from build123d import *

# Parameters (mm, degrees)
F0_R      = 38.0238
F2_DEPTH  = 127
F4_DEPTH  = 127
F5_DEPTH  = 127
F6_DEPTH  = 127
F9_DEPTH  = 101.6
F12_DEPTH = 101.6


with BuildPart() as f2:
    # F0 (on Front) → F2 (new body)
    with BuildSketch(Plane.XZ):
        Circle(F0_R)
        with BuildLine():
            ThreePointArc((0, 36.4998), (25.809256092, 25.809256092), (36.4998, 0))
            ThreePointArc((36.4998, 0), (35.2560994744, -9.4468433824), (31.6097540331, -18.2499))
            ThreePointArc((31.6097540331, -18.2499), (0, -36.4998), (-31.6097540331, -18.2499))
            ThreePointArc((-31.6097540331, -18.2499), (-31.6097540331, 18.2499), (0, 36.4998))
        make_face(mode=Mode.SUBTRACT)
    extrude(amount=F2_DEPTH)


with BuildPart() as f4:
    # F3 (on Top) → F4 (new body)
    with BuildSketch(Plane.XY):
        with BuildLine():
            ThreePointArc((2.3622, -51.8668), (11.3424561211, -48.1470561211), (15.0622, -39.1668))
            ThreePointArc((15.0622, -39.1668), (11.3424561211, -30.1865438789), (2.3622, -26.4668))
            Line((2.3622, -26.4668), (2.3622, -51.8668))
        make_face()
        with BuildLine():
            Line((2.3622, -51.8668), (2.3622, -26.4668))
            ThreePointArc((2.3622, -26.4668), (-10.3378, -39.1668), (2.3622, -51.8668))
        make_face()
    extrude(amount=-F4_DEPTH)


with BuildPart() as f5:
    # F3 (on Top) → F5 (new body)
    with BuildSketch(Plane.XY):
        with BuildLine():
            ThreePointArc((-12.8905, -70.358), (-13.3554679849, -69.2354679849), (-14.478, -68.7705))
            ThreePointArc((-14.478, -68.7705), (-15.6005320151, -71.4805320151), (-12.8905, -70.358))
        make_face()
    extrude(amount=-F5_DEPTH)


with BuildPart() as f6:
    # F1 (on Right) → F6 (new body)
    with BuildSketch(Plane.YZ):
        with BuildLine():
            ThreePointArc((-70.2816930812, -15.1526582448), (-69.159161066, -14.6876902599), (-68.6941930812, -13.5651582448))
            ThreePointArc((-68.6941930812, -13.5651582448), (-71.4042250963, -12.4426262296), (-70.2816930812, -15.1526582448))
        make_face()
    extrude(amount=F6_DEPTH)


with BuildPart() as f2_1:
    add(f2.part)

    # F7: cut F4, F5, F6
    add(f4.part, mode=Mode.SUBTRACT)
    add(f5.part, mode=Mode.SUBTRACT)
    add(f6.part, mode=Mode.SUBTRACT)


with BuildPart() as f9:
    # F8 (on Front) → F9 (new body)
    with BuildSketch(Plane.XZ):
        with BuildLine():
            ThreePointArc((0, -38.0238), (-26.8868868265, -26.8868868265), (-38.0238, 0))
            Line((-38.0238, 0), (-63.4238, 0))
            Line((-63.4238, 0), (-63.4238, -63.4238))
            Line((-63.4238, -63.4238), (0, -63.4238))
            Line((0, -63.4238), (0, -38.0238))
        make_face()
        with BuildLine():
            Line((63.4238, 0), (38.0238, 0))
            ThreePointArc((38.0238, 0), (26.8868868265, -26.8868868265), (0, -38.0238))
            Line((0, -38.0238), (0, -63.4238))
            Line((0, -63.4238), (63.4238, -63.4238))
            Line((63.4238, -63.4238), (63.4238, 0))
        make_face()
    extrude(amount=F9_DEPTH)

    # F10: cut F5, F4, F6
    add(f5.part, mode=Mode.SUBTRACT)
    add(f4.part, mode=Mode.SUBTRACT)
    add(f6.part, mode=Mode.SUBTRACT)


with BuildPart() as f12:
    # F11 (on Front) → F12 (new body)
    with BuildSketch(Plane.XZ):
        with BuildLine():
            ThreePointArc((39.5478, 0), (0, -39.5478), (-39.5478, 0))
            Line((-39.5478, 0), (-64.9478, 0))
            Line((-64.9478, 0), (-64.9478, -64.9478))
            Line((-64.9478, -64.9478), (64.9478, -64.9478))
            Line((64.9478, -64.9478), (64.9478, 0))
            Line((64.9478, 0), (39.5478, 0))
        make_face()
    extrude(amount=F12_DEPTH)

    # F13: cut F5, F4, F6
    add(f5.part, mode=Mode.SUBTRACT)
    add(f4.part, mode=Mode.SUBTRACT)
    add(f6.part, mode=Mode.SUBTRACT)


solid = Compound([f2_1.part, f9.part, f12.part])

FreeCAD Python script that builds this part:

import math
import FreeCAD as App
import Part
import Sketcher
Q = App.Units.Quantity

doc = App.newDocument("Part")
body = doc.addObject("PartDesign::Body", "Body")

sketch1 = body.newObject("Sketcher::SketchObject", "Sketch")
sketch1.AttachmentSupport = (doc.getObject("XZ_Plane"), [""])
sketch1.MapMode = "FlatFace"
sketch1.addGeometry(Part.Circle(App.Vector(0, 0, 0), App.Vector(0, 0, 1), 38.0238), False)
sketch1.addGeometry(Part.ArcOfCircle(Part.Circle(App.Vector(0, 0, 0), App.Vector(0, 0, 1), 36.4998), math.radians(90), math.radians(210)), False)
sketch1.addGeometry(Part.ArcOfCircle(Part.Circle(App.Vector(0, 0, 0), App.Vector(0, 0, 1), 36.4998), math.radians(0), math.radians(90)), False)
sketch1.addGeometry(Part.ArcOfCircle(Part.Circle(App.Vector(0, 0, 0), App.Vector(0, 0, 1), 36.4998), math.radians(-30), math.radians(0)), False)
sketch1.addGeometry(Part.ArcOfCircle(Part.Circle(App.Vector(0, 0, 0), App.Vector(0, 0, 1), 36.4998), math.radians(-150), math.radians(-30)), False)
sketch1.addConstraint(Sketcher.Constraint("Tangent", 1, 1, 2, 2))
sketch1.addConstraint(Sketcher.Constraint("Tangent", 2, 1, 3, 2))
sketch1.addConstraint(Sketcher.Constraint("Tangent", 3, 1, 4, 2))
sketch1.addConstraint(Sketcher.Constraint("Tangent", 4, 1, 1, 2))
sketch1.addConstraint(Sketcher.Constraint("Coincident", 0, 3, -1, 1))
sketch1.addConstraint(Sketcher.Constraint("Coincident", 1, 3, -1, 1))
sketch1.addConstraint(Sketcher.Constraint("Equal", 1, 2))
sketch1.addConstraint(Sketcher.Constraint("PointOnObject", 1, 1, -2))
sketch1.addConstraint(Sketcher.Constraint("PointOnObject", 2, 1, -1))
sketch1.addConstraint(Sketcher.Constraint("Horizontal", 3, 1, 4, 1))
sketch1.addConstraint(Sketcher.Constraint("Diameter", 0, Q("2.994 in")))
sketch1.addConstraint(Sketcher.Constraint("Radius", 1, Q("1.437 in")))
sketch1.addConstraint(Sketcher.Constraint("DistanceY", 3, 1, -1, 1, Q("0.7185 in")))
pad1 = body.newObject("PartDesign::Pad", "Pad")
pad1.Profile = sketch1
pad1.Length = Q("5 in")
body2 = doc.addObject("PartDesign::Body", "Body001")

sketch2 = body2.newObject("Sketcher::SketchObject", "Sketch001")
sketch2.AttachmentSupport = (doc.getObject("XY_Plane001"), [""])
sketch2.MapMode = "FlatFace"
sketch2.addGeometry(Part.ArcOfCircle(Part.Circle(App.Vector(2.3622, -39.1668, 0), App.Vector(0, 0, 1), 12.7), math.radians(-90), math.radians(0)), False)
sketch2.addGeometry(Part.ArcOfCircle(Part.Circle(App.Vector(2.3622, -39.1668, 0), App.Vector(0, 0, 1), 12.7), math.radians(0), math.radians(90)), False)
sketch2.addGeometry(Part.ArcOfCircle(Part.Circle(App.Vector(2.3622, -39.1668, 0), App.Vector(0, 0, 1), 12.7), math.radians(90), math.radians(270)), False)
sketch2.addConstraint(Sketcher.Constraint("Tangent", 0, 2, 1, 1))
sketch2.addConstraint(Sketcher.Constraint("Tangent", 1, 2, 2, 1))
sketch2.addConstraint(Sketcher.Constraint("Tangent", 2, 2, 0, 1))
sketch2.addConstraint(Sketcher.Constraint("Horizontal", 2, 3, 0, 2))
sketch2.addConstraint(Sketcher.Constraint("Vertical", 2, 3, 1, 2))
sketch2.addConstraint(Sketcher.Constraint("Vertical", 1, 2, 2, 2))
sketch2.addConstraint(Sketcher.Constraint("Radius", 0, Q("0.5 in")))
sketch2.addConstraint(Sketcher.Constraint("DistanceX", -1, 1, 0, 3, Q("0.093 in")))
sketch2.addConstraint(Sketcher.Constraint("DistanceY", 0, 3, -1, 1, Q("1.542 in")))
pad2 = body2.newObject("PartDesign::Pad", "Pad001")
pad2.Profile = sketch2
pad2.Length = Q("5 in")
pad2.Reversed = True
body3 = doc.addObject("PartDesign::Body", "Body002")

sketch3 = body3.newObject("Sketcher::SketchObject", "Sketch002")
sketch3.AttachmentSupport = (doc.getObject("XY_Plane002"), [""])
sketch3.MapMode = "FlatFace"
sketch3.addGeometry(Part.ArcOfCircle(Part.Circle(App.Vector(-14.478, -70.358, 0), App.Vector(0, 0, 1), 1.5875), math.radians(0), math.radians(90)), False)
sketch3.addGeometry(Part.ArcOfCircle(Part.Circle(App.Vector(-14.478, -70.358, 0), App.Vector(0, 0, 1), 1.5875), math.radians(90), math.radians(360)), False)
sketch3.addConstraint(Sketcher.Constraint("Tangent", 0, 1, 1, 2))
sketch3.addConstraint(Sketcher.Constraint("Coincident", 1, 1, 0, 2))
sketch3.addConstraint(Sketcher.Constraint("Horizontal", 1, 3, 0, 1))
sketch3.addConstraint(Sketcher.Constraint("Vertical", 0, 3, 1, 1))
sketch3.addConstraint(Sketcher.Constraint("Radius", 0, Q("0.0625 in")))
sketch3.addConstraint(Sketcher.Constraint("DistanceX", 0, 3, -1, 1, Q("0.57 in")))
sketch3.addConstraint(Sketcher.Constraint("DistanceY", 0, 3, -1, 1, Q("2.77 in")))
pad3 = body3.newObject("PartDesign::Pad", "Pad002")
pad3.Profile = sketch3
pad3.Length = Q("5 in")
pad3.Reversed = True
body4 = doc.addObject("PartDesign::Body", "Body003")

sketch4 = body4.newObject("Sketcher::SketchObject", "Sketch003")
sketch4.AttachmentSupport = (doc.getObject("YZ_Plane003"), [""])
sketch4.MapMode = "FlatFace"
sketch4.addGeometry(Part.ArcOfCircle(Part.Circle(App.Vector(-70.281693, -13.565158, 0), App.Vector(0, 0, 1), 1.5875), math.radians(-90), math.radians(0)), False)
sketch4.addGeometry(Part.ArcOfCircle(Part.Circle(App.Vector(-70.281693, -13.565158, 0), App.Vector(0, 0, 1), 1.5875), math.radians(0), math.radians(270)), False)
sketch4.addConstraint(Sketcher.Constraint("Tangent", 0, 1, 1, 2))
sketch4.addConstraint(Sketcher.Constraint("Coincident", 1, 1, 0, 2))
sketch4.addConstraint(Sketcher.Constraint("Horizontal", 0, 3, 1, 1))
sketch4.addConstraint(Sketcher.Constraint("Vertical", 1, 3, 0, 1))
sketch4.addConstraint(Sketcher.Constraint("Radius", 0, Q("0.0625 in")))
sketch4.addConstraint(Sketcher.Constraint("DistanceY", 0, 3, -1, 1, Q("13.565158 mm")))
sketch4.addConstraint(Sketcher.Constraint("DistanceX", 0, 3, -1, 1, Q("70.281693 mm")))
pad4 = body4.newObject("PartDesign::Pad", "Pad003")
pad4.Profile = sketch4
pad4.Length = Q("5 in")
doc.recompute()

body5 = doc.addObject("PartDesign::Body", "Body004")
body5.BaseFeature = body2
boolean = body.newObject("PartDesign::Boolean", "Boolean")
boolean.Type = "Cut"
boolean.addObjects([body5])
doc.recompute()

body6 = doc.addObject("PartDesign::Body", "Body005")
body6.BaseFeature = body3
boolean2 = body.newObject("PartDesign::Boolean", "Boolean001")
boolean2.Type = "Cut"
boolean2.addObjects([body6])
doc.recompute()

body7 = doc.addObject("PartDesign::Body", "Body006")
body7.BaseFeature = body4
boolean3 = body.newObject("PartDesign::Boolean", "Boolean002")
boolean3.Type = "Cut"
boolean3.addObjects([body7])
doc.recompute()
body8 = doc.addObject("PartDesign::Body", "Body007")

sketch5 = body8.newObject("Sketcher::SketchObject", "Sketch004")
sketch5.AttachmentSupport = (doc.getObject("XZ_Plane007"), [""])
sketch5.MapMode = "FlatFace"
sketch5.addGeometry(Part.ArcOfCircle(Part.Circle(App.Vector(0, 0, 0), App.Vector(0, 0, 1), 38.0238), math.radians(180), math.radians(270)), False)
sketch5.addGeometry(Part.LineSegment(App.Vector(-38.0238, 0, 0), App.Vector(-63.4238, 0, 0)), False)
sketch5.addGeometry(Part.LineSegment(App.Vector(-63.4238, 0, 0), App.Vector(-63.4238, -63.4238, 0)), False)
sketch5.addGeometry(Part.LineSegment(App.Vector(-63.4238, -63.4238, 0), App.Vector(63.4238, -63.4238, 0)), False)
sketch5.addGeometry(Part.LineSegment(App.Vector(63.4238, -63.4238, 0), App.Vector(63.4238, 0, 0)), False)
sketch5.addGeometry(Part.LineSegment(App.Vector(63.4238, 0, 0), App.Vector(38.0238, 0, 0)), False)
sketch5.addGeometry(Part.ArcOfCircle(Part.Circle(App.Vector(0, 0, 0), App.Vector(0, 0, 1), 38.0238), math.radians(-90), math.radians(0)), False)
sketch5.addConstraint(Sketcher.Constraint("Coincident", 0, 1, 1, 1))
sketch5.addConstraint(Sketcher.Constraint("Coincident", 1, 2, 2, 1))
sketch5.addConstraint(Sketcher.Constraint("Coincident", 2, 2, 3, 1))
sketch5.addConstraint(Sketcher.Constraint("Coincident", 3, 2, 4, 1))
sketch5.addConstraint(Sketcher.Constraint("Coincident", 4, 2, 5, 1))
sketch5.addConstraint(Sketcher.Constraint("Coincident", 5, 2, 6, 2))
sketch5.addConstraint(Sketcher.Constraint("Tangent", 6, 1, 0, 2))
sketch5.addConstraint(Sketcher.Constraint("Horizontal", 1))
sketch5.addConstraint(Sketcher.Constraint("Vertical", 2))
sketch5.addConstraint(Sketcher.Constraint("Horizontal", 3))
sketch5.addConstraint(Sketcher.Constraint("Vertical", 4))
sketch5.addConstraint(Sketcher.Constraint("Horizontal", 5))
sketch5.addConstraint(Sketcher.Constraint("Coincident", 0, 3, -1, 1))
sketch5.addConstraint(Sketcher.Constraint("Equal", 0, 6))
sketch5.addConstraint(Sketcher.Constraint("Symmetric", 1, 2, 4, 2, -1, 1))
sketch5.addConstraint(Sketcher.Constraint("PointOnObject", 0, 1, -1))
sketch5.addConstraint(Sketcher.Constraint("PointOnObject", 6, 1, -2))
sketch5.addConstraint(Sketcher.Constraint("DistanceX", 1, 2, 1, 1, Q("1 in")))
sketch5.addConstraint(Sketcher.Constraint("Radius", 0, Q("1.497 in")))
sketch5.addConstraint(Sketcher.Constraint("DistanceY", 2, 2, 6, 1, Q("1 in")))
pad5 = body8.newObject("PartDesign::Pad", "Pad004")
pad5.Profile = sketch5
pad5.Length = Q("4 in")
doc.recompute()

body9 = doc.addObject("PartDesign::Body", "Body008")
body9.BaseFeature = body3
boolean4 = body8.newObject("PartDesign::Boolean", "Boolean003")
boolean4.Type = "Cut"
boolean4.addObjects([body9])
doc.recompute()

body10 = doc.addObject("PartDesign::Body", "Body009")
body10.BaseFeature = body2
boolean5 = body8.newObject("PartDesign::Boolean", "Boolean004")
boolean5.Type = "Cut"
boolean5.addObjects([body10])
doc.recompute()

body11 = doc.addObject("PartDesign::Body", "Body010")
body11.BaseFeature = body4
boolean6 = body8.newObject("PartDesign::Boolean", "Boolean005")
boolean6.Type = "Cut"
boolean6.addObjects([body11])
doc.recompute()
body12 = doc.addObject("PartDesign::Body", "Body011")

sketch6 = body12.newObject("Sketcher::SketchObject", "Sketch005")
sketch6.AttachmentSupport = (doc.getObject("XZ_Plane011"), [""])
sketch6.MapMode = "FlatFace"
sketch6.addGeometry(Part.ArcOfCircle(Part.Circle(App.Vector(0, 0, 0), App.Vector(0, 0, 1), 39.5478), math.radians(180), math.radians(360)), False)
sketch6.addGeometry(Part.LineSegment(App.Vector(-39.5478, 0, 0), App.Vector(-64.9478, 0, 0)), False)
sketch6.addGeometry(Part.LineSegment(App.Vector(-64.9478, 0, 0), App.Vector(-64.9478, -64.9478, 0)), False)
sketch6.addGeometry(Part.LineSegment(App.Vector(-64.9478, -64.9478, 0), App.Vector(64.9478, -64.9478, 0)), False)
sketch6.addGeometry(Part.LineSegment(App.Vector(64.9478, -64.9478, 0), App.Vector(64.9478, 0, 0)), False)
sketch6.addGeometry(Part.LineSegment(App.Vector(64.9478, 0, 0), App.Vector(39.5478, 0, 0)), False)
sketch6.addConstraint(Sketcher.Constraint("Coincident", 0, 1, 1, 1))
sketch6.addConstraint(Sketcher.Constraint("Coincident", 1, 2, 2, 1))
sketch6.addConstraint(Sketcher.Constraint("Coincident", 2, 2, 3, 1))
sketch6.addConstraint(Sketcher.Constraint("Coincident", 3, 2, 4, 1))
sketch6.addConstraint(Sketcher.Constraint("Coincident", 4, 2, 5, 1))
sketch6.addConstraint(Sketcher.Constraint("Coincident", 5, 2, 0, 2))
sketch6.addConstraint(Sketcher.Constraint("Horizontal", 1))
sketch6.addConstraint(Sketcher.Constraint("Vertical", 2))
sketch6.addConstraint(Sketcher.Constraint("Horizontal", 3))
sketch6.addConstraint(Sketcher.Constraint("Vertical", 4))
sketch6.addConstraint(Sketcher.Constraint("Horizontal", 5))
sketch6.addConstraint(Sketcher.Constraint("Coincident", 0, 3, -1, 1))
sketch6.addConstraint(Sketcher.Constraint("Symmetric", 1, 2, 4, 2, -1, 1))
sketch6.addConstraint(Sketcher.Constraint("PointOnObject", 0, 1, -1))
sketch6.addConstraint(Sketcher.Constraint("DistanceX", 1, 2, 1, 1, Q("1 in")))
sketch6.addConstraint(Sketcher.Constraint("Radius", 0, Q("1.557 in")))
sketch6.addConstraint(Sketcher.Constraint("DistanceY", 2, 2, 2, 1, Q("2.557 in")))
pad6 = body12.newObject("PartDesign::Pad", "Pad005")
pad6.Profile = sketch6
pad6.Length = Q("4 in")
doc.recompute()

boolean7 = body12.newObject("PartDesign::Boolean", "Boolean006")
boolean7.Type = "Cut"
boolean7.addObjects([body3])
doc.recompute()

boolean8 = body12.newObject("PartDesign::Boolean", "Boolean007")
boolean8.Type = "Cut"
boolean8.addObjects([body2])
doc.recompute()

boolean9 = body12.newObject("PartDesign::Boolean", "Boolean008")
boolean9.Type = "Cut"
boolean9.addObjects([body4])

doc.recompute()
